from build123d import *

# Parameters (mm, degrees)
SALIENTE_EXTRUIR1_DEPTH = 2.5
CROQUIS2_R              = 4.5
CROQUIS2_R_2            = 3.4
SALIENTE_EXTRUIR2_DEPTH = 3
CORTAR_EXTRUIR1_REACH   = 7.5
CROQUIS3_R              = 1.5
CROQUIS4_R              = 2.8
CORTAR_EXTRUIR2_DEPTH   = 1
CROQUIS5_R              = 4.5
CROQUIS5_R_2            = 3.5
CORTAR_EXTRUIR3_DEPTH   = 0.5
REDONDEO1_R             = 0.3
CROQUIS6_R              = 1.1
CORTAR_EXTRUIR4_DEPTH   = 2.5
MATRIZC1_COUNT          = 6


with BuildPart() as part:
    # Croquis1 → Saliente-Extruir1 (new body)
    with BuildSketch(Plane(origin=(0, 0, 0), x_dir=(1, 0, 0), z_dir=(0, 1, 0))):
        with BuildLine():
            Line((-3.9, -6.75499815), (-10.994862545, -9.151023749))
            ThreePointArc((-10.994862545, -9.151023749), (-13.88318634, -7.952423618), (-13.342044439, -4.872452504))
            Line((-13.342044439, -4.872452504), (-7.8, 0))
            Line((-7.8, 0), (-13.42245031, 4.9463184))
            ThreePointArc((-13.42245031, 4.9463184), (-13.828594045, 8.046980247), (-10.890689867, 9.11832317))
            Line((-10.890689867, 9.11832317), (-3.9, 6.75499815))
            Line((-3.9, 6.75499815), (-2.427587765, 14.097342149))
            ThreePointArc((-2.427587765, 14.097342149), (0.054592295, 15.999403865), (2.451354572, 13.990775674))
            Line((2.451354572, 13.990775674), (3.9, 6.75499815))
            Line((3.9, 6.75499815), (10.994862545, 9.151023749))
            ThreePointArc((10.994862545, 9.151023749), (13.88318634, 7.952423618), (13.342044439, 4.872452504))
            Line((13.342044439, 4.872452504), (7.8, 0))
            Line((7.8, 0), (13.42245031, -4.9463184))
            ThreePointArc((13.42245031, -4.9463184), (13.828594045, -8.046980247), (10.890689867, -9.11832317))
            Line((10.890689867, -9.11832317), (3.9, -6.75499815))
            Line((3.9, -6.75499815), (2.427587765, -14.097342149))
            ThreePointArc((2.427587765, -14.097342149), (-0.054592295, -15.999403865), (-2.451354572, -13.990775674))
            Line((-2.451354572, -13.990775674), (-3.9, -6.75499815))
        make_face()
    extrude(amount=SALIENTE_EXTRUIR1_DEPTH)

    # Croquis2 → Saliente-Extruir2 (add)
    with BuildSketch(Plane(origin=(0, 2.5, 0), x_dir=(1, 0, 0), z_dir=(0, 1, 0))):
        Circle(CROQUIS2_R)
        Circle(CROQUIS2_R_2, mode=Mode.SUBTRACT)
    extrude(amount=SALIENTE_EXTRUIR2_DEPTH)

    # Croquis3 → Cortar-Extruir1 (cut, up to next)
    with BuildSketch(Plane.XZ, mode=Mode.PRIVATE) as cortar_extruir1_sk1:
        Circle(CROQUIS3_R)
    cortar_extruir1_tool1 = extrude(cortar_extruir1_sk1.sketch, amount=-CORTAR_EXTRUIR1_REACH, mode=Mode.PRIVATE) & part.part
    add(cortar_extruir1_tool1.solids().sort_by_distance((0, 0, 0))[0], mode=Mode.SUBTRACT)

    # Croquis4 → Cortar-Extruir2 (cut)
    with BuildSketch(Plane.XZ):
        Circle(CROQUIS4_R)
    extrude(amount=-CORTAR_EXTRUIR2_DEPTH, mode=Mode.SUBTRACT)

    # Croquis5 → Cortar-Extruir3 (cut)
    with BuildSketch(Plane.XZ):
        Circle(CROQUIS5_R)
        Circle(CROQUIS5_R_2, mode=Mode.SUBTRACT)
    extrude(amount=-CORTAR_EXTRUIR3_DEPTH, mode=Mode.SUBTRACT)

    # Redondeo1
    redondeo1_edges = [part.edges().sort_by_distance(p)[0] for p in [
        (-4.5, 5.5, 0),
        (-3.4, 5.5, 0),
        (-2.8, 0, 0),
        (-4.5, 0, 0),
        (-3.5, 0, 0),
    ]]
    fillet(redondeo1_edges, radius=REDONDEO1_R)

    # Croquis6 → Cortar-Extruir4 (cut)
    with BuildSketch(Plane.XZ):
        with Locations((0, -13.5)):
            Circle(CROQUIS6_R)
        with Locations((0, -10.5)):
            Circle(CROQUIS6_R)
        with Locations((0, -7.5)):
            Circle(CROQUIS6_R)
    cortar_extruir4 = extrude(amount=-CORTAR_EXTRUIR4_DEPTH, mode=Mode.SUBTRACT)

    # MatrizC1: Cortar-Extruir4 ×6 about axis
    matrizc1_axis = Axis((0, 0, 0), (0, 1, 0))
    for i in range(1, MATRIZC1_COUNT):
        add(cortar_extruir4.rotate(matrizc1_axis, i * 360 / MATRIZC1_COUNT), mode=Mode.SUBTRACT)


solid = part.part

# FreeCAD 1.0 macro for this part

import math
import FreeCAD as App
import Part
import Sketcher

V = App.Vector


def edges_at(feature, points):
    """Names of the edges that pass closest to the given points."""
    edges = feature.Shape.Edges
    near = lambda p: min(range(len(edges)), key=lambda i: edges[i].distToShape(Part.Vertex(*p))[0])
    return sorted({f"Edge{near(p) + 1}" for p in points})

doc = App.newDocument("Part")
params = doc.addObject("Spreadsheet::Sheet", "Params")
for row, (alias, value) in enumerate([
    ("sketch1_radius", "2.5 mm"),
    ("pad1_length", "2.5 mm"),
    ("sketch2_diameter", "9 mm"),
    ("sketch2_diameter2", "6.8 mm"),
    ("pad2_length", "3 mm"),
    ("sketch3_diameter", "3 mm"),
    ("sketch4_diameter", "5.6 mm"),
    ("pocket2_length", "1 mm"),
    ("sketch5_diameter", "9 mm"),
    ("sketch5_diameter2", "7 mm"),
    ("pocket3_length", "0.5 mm"),
    ("fillet_radius", "0.3 mm"),
    ("sketch6_diameter", "2.2 mm"),
    ("pocket4_length", "2.5 mm"),
], start=1):
    params.set(f"A{row}", alias)
    params.set(f"B{row}", "=" + value)
    params.setAlias(f"B{row}", alias)

body = doc.addObject("PartDesign::Body", "Body")

sketch1 = doc.addObject("Sketcher::SketchObject", "Sketch")
body.addObject(sketch1)
sketch1.AttachmentSupport = (doc.XZ_Plane, [""])
sketch1.MapMode = "FlatFace"
sketch1.addGeometry([
    Part.LineSegment(V(-11, 9.2, 0), V(-3.9, 6.8, 0)),
    Part.LineSegment(V(-3.9, 6.8, 0), V(-2.5, 14, 0)),
    Part.ArcOfCircle(Part.Circle(V(0, 13.5, 0), V(0, 0, 1), 2.5), math.radians(14), math.radians(169)),
    Part.LineSegment(V(2.4, 14.1, 0), V(3.9, 6.8, 0)),
    Part.LineSegment(V(3.9, 6.8, 0), V(10.9, 9.1, 0)),
    Part.ArcOfCircle(Part.Circle(V(11.7, 6.8, 0), V(0, 0, 1), 2.5), math.radians(-46), math.radians(109)),
    Part.LineSegment(V(13.4, 4.9, 0), V(7.8, 0, 0)),
    Part.LineSegment(V(7.8, 0, 0), V(13.3, -4.9, 0)),
    Part.ArcOfCircle(Part.Circle(V(11.7, -6.8, 0), V(0, 0, 1), 2.5), math.radians(-106), math.radians(49)),
    Part.LineSegment(V(11, -9.2, 0), V(3.9, -6.8, 0)),
    Part.LineSegment(V(3.9, -6.8, 0), V(2.5, -14, 0)),
    Part.ArcOfCircle(Part.Circle(V(0, -13.5, 0), V(0, 0, 1), 2.5), math.radians(-166), math.radians(-11)),
    Part.LineSegment(V(-2.4, -14.1, 0), V(-3.9, -6.8, 0)),
    Part.LineSegment(V(-3.9, -6.8, 0), V(-10.9, -9.1, 0)),
    Part.ArcOfCircle(Part.Circle(V(-11.7, -6.8, 0), V(0, 0, 1), 2.5), math.radians(134), math.radians(289)),
    Part.LineSegment(V(-13.4, -4.9, 0), V(-7.8, 0, 0)),
    Part.LineSegment(V(-7.8, 0, 0), V(-13.3, 4.9, 0)),
    Part.ArcOfCircle(Part.Circle(V(-11.7, 6.8, 0), V(0, 0, 1), 2.5), math.radians(74), math.radians(229)),
], False)
sketch1.addConstraint([
    Sketcher.Constraint("Coincident", 0, 2, 1, 1),
    Sketcher.Constraint("Tangent", 1, 2, 2, 2),
    Sketcher.Constraint("Coincident", 2, 1, 3, 1),
    Sketcher.Constraint("Coincident", 3, 2, 4, 1),
    Sketcher.Constraint("Tangent", 4, 2, 5, 2),
    Sketcher.Constraint("Coincident", 5, 1, 6, 1),
    Sketcher.Constraint("Coincident", 6, 2, 7, 1),
    Sketcher.Constraint("Tangent", 7, 2, 8, 2),
    Sketcher.Constraint("Coincident", 8, 1, 9, 1),
    Sketcher.Constraint("Coincident", 9, 2, 10, 1),
    Sketcher.Constraint("Tangent", 10, 2, 11, 2),
    Sketcher.Constraint("Coincident", 11, 1, 12, 1),
    Sketcher.Constraint("Coincident", 12, 2, 13, 1),
    Sketcher.Constraint("Tangent", 13, 2, 14, 2),
    Sketcher.Constraint("Coincident", 14, 1, 15, 1),
    Sketcher.Constraint("Coincident", 15, 2, 16, 1),
    Sketcher.Constraint("Tangent", 16, 2, 17, 2),
    Sketcher.Constraint("Coincident", 17, 1, 0, 1),
    Sketcher.Constraint("Equal", 2, 5),
    Sketcher.Constraint("Equal", 5, 8),
    Sketcher.Constraint("Equal", 8, 11),
    Sketcher.Constraint("Equal", 11, 14),
    Sketcher.Constraint("Equal", 14, 17),
    Sketcher.Constraint("Symmetric", 2, 3, 11, 3, -1, 1),
    Sketcher.Constraint("Symmetric", 5, 3, 14, 3, -1, 1),
    Sketcher.Constraint("Symmetric", 8, 3, 17, 3, -1, 1),
    Sketcher.Constraint("Symmetric", 0, 2, 9, 2, -1, 1),
    Sketcher.Constraint("Symmetric", 3, 2, 12, 2, -1, 1),
    Sketcher.Constraint("Symmetric", 6, 2, 15, 2, -1, 1),
    Sketcher.Constraint("Symmetric", 8, 3, 14, 3, -2),
    Sketcher.Constraint("Symmetric", 0, 2, 3, 2, -2),
    Sketcher.Constraint("PointOnObject", 2, 3, -2),
    Sketcher.Constraint("PointOnObject", 6, 2, -1),
    Sketcher.Constraint("Parallel", 0, 9),
    Sketcher.Constraint("Parallel", 3, 12),
    Sketcher.Constraint("Parallel", 6, 15),
    Sketcher.Constraint("Equal", 0, 3),
    Sketcher.Constraint("Equal", 1, 4),
    Sketcher.Constraint("Equal", 3, 6),
    Sketcher.Constraint("Equal", 4, 7),
    Sketcher.Constraint("Radius", 2, 2.5),
    Sketcher.Constraint("DistanceY", 11, 3, 2, 3, 27.0),
    Sketcher.Constraint("DistanceX", 0, 2, -1, 1, 3.9),
    Sketcher.Constraint("DistanceX", -1, 1, 6, 2, 7.8),
    Sketcher.Constraint("DistanceY", 8, 3, 5, 3, 13.5),
    Sketcher.Constraint("DistanceX", -1, 1, 5, 1, 13.42245),
])
sketch1.setExpression("Constraints[40]", "Params.sketch1_radius")
pad1 = doc.addObject("PartDesign::Pad", "Pad")
body.addObject(pad1)
pad1.Profile = sketch1
pad1.setExpression("Length", "Params.pad1_length")
pad1.Reversed = True

sketch2 = doc.addObject("Sketcher::SketchObject", "Sketch001")
body.addObject(sketch2)
sketch2.AttachmentSupport = (doc.XZ_Plane, [""])
sketch2.MapMode = "FlatFace"
sketch2.AttachmentOffset = App.Placement(V(0, 0, -2.5), App.Rotation())
sketch2.addGeometry([
    Part.Circle(V(0, 0, 0), V(0, 0, 1), 4.5),
    Part.Circle(V(0, 0, 0), V(0, 0, 1), 3.4),
], False)
sketch2.addConstraint([
    Sketcher.Constraint("Coincident", 0, 3, -1, 1),
    Sketcher.Constraint("Coincident", 1, 3, -1, 1),
    Sketcher.Constraint("Diameter", 0, 9.0),
    Sketcher.Constraint("Diameter", 1, 6.8),
])
sketch2.setExpression("Constraints[2]", "Params.sketch2_diameter")
sketch2.setExpression("Constraints[3]", "Params.sketch2_diameter2")
pad2 = doc.addObject("PartDesign::Pad", "Pad001")
body.addObject(pad2)
pad2.Profile = sketch2
pad2.setExpression("Length", "Params.pad2_length")
pad2.Reversed = True

sketch3 = doc.addObject("Sketcher::SketchObject", "Sketch002")
body.addObject(sketch3)
sketch3.AttachmentSupport = (doc.XZ_Plane, [""])
sketch3.MapMode = "FlatFace"
sketch3.addGeometry(Part.Circle(V(0, 0, 0), V(0, 0, 1), 1.5), False)
sketch3.addConstraint([
    Sketcher.Constraint("Coincident", 0, 3, -1, 1),
    Sketcher.Constraint("Diameter", 0, 3.0),
])
sketch3.setExpression("Constraints[1]", "Params.sketch3_diameter")
pocket1 = doc.addObject("PartDesign::Pocket", "Pocket")
body.addObject(pocket1)
pocket1.Profile = sketch3
pocket1.Type = "UpToFirst"

sketch4 = doc.addObject("Sketcher::SketchObject", "Sketch003")
body.addObject(sketch4)
sketch4.AttachmentSupport = (doc.XZ_Plane, [""])
sketch4.MapMode = "FlatFace"
sketch4.addGeometry(Part.Circle(V(0, 0, 0), V(0, 0, 1), 2.8), False)
sketch4.addConstraint([
    Sketcher.Constraint("Coincident", 0, 3, -1, 1),
    Sketcher.Constraint("Diameter", 0, 5.6),
])
sketch4.setExpression("Constraints[1]", "Params.sketch4_diameter")
pocket2 = doc.addObject("PartDesign::Pocket", "Pocket001")
body.addObject(pocket2)
pocket2.Profile = sketch4
pocket2.setExpression("Length", "Params.pocket2_length")

sketch5 = doc.addObject("Sketcher::SketchObject", "Sketch004")
body.addObject(sketch5)
sketch5.AttachmentSupport = (doc.XZ_Plane, [""])
sketch5.MapMode = "FlatFace"
sketch5.addGeometry([
    Part.Circle(V(0, 0, 0), V(0, 0, 1), 4.5),
    Part.Circle(V(0, 0, 0), V(0, 0, 1), 3.5),
], False)
sketch5.addConstraint([
    Sketcher.Constraint("Coincident", 0, 3, -1, 1),
    Sketcher.Constraint("Coincident", 1, 3, -1, 1),
    Sketcher.Constraint("Diameter", 0, 9.0),
    Sketcher.Constraint("Diameter", 1, 7.0),
])
sketch5.setExpression("Constraints[2]", "Params.sketch5_diameter")
sketch5.setExpression("Constraints[3]", "Params.sketch5_diameter2")
pocket3 = doc.addObject("PartDesign::Pocket", "Pocket002")
body.addObject(pocket3)
pocket3.Profile = sketch5
pocket3.setExpression("Length", "Params.pocket3_length")
doc.recompute()

fillet = doc.addObject("PartDesign::Fillet", "Fillet")
body.addObject(fillet)
fillet.Base = (pocket3, edges_at(pocket3, [
    (-4.5, 5.5, 0),
    (-3.4, 5.5, 0),
    (-2.8, 0, 0),
    (-4.5, 0, 0),
    (-3.5, 0, 0),
]))
fillet.setExpression("Radius", "Params.fillet_radius")

sketch6 = doc.addObject("Sketcher::SketchObject", "Sketch005")
body.addObject(sketch6)
sketch6.AttachmentSupport = (doc.XZ_Plane, [""])
sketch6.MapMode = "FlatFace"
sketch6.addGeometry([
    Part.Circle(V(0, -13.5, 0), V(0, 0, 1), 1.1),
    Part.Circle(V(0, -10.5, 0), V(0, 0, 1), 1.1),
    Part.Circle(V(0, -7.5, 0), V(0, 0, 1), 1.1),
], False)
sketch6.addConstraint([
    Sketcher.Constraint("Equal", 0, 1),
    Sketcher.Constraint("Equal", 1, 2),
    Sketcher.Constraint("PointOnObject", 0, 3, -2),
    Sketcher.Constraint("PointOnObject", 1, 3, -2),
    Sketcher.Constraint("PointOnObject", 2, 3, -2),
    Sketcher.Constraint("Diameter", 0, 2.2),
    Sketcher.Constraint("DistanceY", 0, 3, 1, 3, 3.0),
    Sketcher.Constraint("DistanceY", 1, 3, 2, 3, 3.0),
    Sketcher.Constraint("DistanceY", 0, 3, -1, 1, 13.5),
])
sketch6.setExpression("Constraints[5]", "Params.sketch6_diameter")
pocket4 = doc.addObject("PartDesign::Pocket", "Pocket003")
body.addObject(pocket4)
pocket4.Profile = sketch6
pocket4.setExpression("Length", "Params.pocket4_length")
doc.recompute()

polarpattern = doc.addObject("PartDesign::PolarPattern", "PolarPattern")
body.addObject(polarpattern)
polarpattern.Originals = [pocket4]
polarpattern.Axis = (doc.Y_Axis, [""])
polarpattern.Angle = 360
polarpattern.Occurrences = 6
body.Tip = polarpattern

doc.recompute()
